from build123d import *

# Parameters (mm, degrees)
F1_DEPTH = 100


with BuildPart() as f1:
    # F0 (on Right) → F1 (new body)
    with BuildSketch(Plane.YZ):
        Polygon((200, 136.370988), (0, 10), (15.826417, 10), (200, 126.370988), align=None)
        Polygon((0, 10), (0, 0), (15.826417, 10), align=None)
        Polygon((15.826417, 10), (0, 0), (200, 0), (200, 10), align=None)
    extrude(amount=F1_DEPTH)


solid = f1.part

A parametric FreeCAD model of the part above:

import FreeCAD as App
import Part
import Sketcher

V = App.Vector


def add_polygon(sketch, points):
    """Adds a closed chain of lines whose ends are joined by coincident constraints."""
    first, n = sketch.GeometryCount, len(points)
    for a, b in zip(points, points[1:] + points[:1]):
        sketch.addGeometry(Part.LineSegment(App.Vector(*a, 0), App.Vector(*b, 0)), False)
    for i in range(n):
        sketch.addConstraint(Sketcher.Constraint("Coincident", first + i, 2, first + (i + 1) % n, 1))

doc = App.newDocument("Part")
body = doc.addObject("PartDesign::Body", "Body")

sketch1 = doc.addObject("Sketcher::SketchObject", "Sketch")
body.addObject(sketch1)
sketch1.AttachmentSupport = (doc.YZ_Plane, [""])
sketch1.MapMode = "FlatFace"
add_polygon(sketch1, [(200, 136), (0, 10), (0, 0), (200, 0), (200, 10), (16, 10), (200, 126)])
sketch1.addConstraint([
    Sketcher.Constraint("Vertical", 1),
    Sketcher.Constraint("Horizontal", 2),
    Sketcher.Constraint("Vertical", 3),
    Sketcher.Constraint("Horizontal", 4),
    Sketcher.Constraint("Vertical", 6),
    Sketcher.Constraint("Coincident", 1, 2, -1, 1),
    Sketcher.Constraint("Parallel", 0, 5),
    Sketcher.Constraint("Horizontal", 0, 2, 3, 2),
    Sketcher.Constraint("Vertical", 3, 2, 5, 2),
    Sketcher.Constraint("Equal", 3, 6),
    Sketcher.Constraint("DistanceX", 2, 1, 2, 2, 200.0),
    Sketcher.Constraint("DistanceY", 1, 2, 1, 1, 10.0),
    Sketcher.Constraint("DistanceX", 4, 2, 4, 1, 184.173583),
])
pad1 = doc.addObject("PartDesign::Pad", "Pad")
body.addObject(pad1)
pad1.Profile = sketch1
pad1.Length = 100

doc.recompute()
